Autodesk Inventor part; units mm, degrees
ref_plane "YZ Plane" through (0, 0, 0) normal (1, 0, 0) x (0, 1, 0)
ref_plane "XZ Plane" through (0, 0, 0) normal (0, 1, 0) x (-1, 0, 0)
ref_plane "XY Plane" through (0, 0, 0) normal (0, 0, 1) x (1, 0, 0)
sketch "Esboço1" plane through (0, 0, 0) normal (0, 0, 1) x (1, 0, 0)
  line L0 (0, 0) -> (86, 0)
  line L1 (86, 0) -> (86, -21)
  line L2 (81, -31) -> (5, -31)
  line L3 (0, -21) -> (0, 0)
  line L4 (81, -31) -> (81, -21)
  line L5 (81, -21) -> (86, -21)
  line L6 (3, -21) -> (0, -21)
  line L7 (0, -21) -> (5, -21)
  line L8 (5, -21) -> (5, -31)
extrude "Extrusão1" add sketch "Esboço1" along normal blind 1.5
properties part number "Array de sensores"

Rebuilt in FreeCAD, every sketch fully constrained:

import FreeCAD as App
import Part
import Sketcher


def add_polygon(sketch, points):
    """Adds a closed chain of lines whose ends are joined by coincident constraints."""
    first, n = sketch.GeometryCount, len(points)
    for a, b in zip(points, points[1:] + points[:1]):
        sketch.addGeometry(Part.LineSegment(App.Vector(*a, 0), App.Vector(*b, 0)), False)
    for i in range(n):
        sketch.addConstraint(Sketcher.Constraint("Coincident", first + i, 2, first + (i + 1) % n, 1))

doc = App.newDocument("Part")
body = doc.addObject("PartDesign::Body", "Body")

sketch1 = body.newObject("Sketcher::SketchObject", "Sketch")
sketch1.AttachmentSupport = (doc.getObject("XY_Plane"), [""])
sketch1.MapMode = "FlatFace"
add_polygon(sketch1, [(86, 0), (0, 0), (0, -21), (5, -21), (5, -31), (81, -31), (81, -21), (86, -21)])
sketch1.addConstraint([
    Sketcher.Constraint("Horizontal", 0),
    Sketcher.Constraint("Vertical", 1),
    Sketcher.Constraint("Horizontal", 2),
    Sketcher.Constraint("Vertical", 3),
    Sketcher.Constraint("Horizontal", 4),
    Sketcher.Constraint("Vertical", 5),
    Sketcher.Constraint("Horizontal", 6),
    Sketcher.Constraint("Vertical", 7),
    Sketcher.Constraint("Coincident", 0, 2, -1, 1),
    Sketcher.Constraint("Horizontal", 2, 2, 5, 2),
    Sketcher.Constraint("Equal", 2, 6),
    Sketcher.Constraint("DistanceX", 0, 2, 0, 1, 86.0),
    Sketcher.Constraint("DistanceX", 2, 1, 2, 2, 5.0),
    Sketcher.Constraint("DistanceY", 1, 2, 1, 1, 21.0),
    Sketcher.Constraint("DistanceY", 3, 2, 3, 1, 10.0),
])
pad1 = body.newObject("PartDesign::Pad", "Pad")
pad1.Profile = sketch1
pad1.Length = 1.5

doc.recompute()
